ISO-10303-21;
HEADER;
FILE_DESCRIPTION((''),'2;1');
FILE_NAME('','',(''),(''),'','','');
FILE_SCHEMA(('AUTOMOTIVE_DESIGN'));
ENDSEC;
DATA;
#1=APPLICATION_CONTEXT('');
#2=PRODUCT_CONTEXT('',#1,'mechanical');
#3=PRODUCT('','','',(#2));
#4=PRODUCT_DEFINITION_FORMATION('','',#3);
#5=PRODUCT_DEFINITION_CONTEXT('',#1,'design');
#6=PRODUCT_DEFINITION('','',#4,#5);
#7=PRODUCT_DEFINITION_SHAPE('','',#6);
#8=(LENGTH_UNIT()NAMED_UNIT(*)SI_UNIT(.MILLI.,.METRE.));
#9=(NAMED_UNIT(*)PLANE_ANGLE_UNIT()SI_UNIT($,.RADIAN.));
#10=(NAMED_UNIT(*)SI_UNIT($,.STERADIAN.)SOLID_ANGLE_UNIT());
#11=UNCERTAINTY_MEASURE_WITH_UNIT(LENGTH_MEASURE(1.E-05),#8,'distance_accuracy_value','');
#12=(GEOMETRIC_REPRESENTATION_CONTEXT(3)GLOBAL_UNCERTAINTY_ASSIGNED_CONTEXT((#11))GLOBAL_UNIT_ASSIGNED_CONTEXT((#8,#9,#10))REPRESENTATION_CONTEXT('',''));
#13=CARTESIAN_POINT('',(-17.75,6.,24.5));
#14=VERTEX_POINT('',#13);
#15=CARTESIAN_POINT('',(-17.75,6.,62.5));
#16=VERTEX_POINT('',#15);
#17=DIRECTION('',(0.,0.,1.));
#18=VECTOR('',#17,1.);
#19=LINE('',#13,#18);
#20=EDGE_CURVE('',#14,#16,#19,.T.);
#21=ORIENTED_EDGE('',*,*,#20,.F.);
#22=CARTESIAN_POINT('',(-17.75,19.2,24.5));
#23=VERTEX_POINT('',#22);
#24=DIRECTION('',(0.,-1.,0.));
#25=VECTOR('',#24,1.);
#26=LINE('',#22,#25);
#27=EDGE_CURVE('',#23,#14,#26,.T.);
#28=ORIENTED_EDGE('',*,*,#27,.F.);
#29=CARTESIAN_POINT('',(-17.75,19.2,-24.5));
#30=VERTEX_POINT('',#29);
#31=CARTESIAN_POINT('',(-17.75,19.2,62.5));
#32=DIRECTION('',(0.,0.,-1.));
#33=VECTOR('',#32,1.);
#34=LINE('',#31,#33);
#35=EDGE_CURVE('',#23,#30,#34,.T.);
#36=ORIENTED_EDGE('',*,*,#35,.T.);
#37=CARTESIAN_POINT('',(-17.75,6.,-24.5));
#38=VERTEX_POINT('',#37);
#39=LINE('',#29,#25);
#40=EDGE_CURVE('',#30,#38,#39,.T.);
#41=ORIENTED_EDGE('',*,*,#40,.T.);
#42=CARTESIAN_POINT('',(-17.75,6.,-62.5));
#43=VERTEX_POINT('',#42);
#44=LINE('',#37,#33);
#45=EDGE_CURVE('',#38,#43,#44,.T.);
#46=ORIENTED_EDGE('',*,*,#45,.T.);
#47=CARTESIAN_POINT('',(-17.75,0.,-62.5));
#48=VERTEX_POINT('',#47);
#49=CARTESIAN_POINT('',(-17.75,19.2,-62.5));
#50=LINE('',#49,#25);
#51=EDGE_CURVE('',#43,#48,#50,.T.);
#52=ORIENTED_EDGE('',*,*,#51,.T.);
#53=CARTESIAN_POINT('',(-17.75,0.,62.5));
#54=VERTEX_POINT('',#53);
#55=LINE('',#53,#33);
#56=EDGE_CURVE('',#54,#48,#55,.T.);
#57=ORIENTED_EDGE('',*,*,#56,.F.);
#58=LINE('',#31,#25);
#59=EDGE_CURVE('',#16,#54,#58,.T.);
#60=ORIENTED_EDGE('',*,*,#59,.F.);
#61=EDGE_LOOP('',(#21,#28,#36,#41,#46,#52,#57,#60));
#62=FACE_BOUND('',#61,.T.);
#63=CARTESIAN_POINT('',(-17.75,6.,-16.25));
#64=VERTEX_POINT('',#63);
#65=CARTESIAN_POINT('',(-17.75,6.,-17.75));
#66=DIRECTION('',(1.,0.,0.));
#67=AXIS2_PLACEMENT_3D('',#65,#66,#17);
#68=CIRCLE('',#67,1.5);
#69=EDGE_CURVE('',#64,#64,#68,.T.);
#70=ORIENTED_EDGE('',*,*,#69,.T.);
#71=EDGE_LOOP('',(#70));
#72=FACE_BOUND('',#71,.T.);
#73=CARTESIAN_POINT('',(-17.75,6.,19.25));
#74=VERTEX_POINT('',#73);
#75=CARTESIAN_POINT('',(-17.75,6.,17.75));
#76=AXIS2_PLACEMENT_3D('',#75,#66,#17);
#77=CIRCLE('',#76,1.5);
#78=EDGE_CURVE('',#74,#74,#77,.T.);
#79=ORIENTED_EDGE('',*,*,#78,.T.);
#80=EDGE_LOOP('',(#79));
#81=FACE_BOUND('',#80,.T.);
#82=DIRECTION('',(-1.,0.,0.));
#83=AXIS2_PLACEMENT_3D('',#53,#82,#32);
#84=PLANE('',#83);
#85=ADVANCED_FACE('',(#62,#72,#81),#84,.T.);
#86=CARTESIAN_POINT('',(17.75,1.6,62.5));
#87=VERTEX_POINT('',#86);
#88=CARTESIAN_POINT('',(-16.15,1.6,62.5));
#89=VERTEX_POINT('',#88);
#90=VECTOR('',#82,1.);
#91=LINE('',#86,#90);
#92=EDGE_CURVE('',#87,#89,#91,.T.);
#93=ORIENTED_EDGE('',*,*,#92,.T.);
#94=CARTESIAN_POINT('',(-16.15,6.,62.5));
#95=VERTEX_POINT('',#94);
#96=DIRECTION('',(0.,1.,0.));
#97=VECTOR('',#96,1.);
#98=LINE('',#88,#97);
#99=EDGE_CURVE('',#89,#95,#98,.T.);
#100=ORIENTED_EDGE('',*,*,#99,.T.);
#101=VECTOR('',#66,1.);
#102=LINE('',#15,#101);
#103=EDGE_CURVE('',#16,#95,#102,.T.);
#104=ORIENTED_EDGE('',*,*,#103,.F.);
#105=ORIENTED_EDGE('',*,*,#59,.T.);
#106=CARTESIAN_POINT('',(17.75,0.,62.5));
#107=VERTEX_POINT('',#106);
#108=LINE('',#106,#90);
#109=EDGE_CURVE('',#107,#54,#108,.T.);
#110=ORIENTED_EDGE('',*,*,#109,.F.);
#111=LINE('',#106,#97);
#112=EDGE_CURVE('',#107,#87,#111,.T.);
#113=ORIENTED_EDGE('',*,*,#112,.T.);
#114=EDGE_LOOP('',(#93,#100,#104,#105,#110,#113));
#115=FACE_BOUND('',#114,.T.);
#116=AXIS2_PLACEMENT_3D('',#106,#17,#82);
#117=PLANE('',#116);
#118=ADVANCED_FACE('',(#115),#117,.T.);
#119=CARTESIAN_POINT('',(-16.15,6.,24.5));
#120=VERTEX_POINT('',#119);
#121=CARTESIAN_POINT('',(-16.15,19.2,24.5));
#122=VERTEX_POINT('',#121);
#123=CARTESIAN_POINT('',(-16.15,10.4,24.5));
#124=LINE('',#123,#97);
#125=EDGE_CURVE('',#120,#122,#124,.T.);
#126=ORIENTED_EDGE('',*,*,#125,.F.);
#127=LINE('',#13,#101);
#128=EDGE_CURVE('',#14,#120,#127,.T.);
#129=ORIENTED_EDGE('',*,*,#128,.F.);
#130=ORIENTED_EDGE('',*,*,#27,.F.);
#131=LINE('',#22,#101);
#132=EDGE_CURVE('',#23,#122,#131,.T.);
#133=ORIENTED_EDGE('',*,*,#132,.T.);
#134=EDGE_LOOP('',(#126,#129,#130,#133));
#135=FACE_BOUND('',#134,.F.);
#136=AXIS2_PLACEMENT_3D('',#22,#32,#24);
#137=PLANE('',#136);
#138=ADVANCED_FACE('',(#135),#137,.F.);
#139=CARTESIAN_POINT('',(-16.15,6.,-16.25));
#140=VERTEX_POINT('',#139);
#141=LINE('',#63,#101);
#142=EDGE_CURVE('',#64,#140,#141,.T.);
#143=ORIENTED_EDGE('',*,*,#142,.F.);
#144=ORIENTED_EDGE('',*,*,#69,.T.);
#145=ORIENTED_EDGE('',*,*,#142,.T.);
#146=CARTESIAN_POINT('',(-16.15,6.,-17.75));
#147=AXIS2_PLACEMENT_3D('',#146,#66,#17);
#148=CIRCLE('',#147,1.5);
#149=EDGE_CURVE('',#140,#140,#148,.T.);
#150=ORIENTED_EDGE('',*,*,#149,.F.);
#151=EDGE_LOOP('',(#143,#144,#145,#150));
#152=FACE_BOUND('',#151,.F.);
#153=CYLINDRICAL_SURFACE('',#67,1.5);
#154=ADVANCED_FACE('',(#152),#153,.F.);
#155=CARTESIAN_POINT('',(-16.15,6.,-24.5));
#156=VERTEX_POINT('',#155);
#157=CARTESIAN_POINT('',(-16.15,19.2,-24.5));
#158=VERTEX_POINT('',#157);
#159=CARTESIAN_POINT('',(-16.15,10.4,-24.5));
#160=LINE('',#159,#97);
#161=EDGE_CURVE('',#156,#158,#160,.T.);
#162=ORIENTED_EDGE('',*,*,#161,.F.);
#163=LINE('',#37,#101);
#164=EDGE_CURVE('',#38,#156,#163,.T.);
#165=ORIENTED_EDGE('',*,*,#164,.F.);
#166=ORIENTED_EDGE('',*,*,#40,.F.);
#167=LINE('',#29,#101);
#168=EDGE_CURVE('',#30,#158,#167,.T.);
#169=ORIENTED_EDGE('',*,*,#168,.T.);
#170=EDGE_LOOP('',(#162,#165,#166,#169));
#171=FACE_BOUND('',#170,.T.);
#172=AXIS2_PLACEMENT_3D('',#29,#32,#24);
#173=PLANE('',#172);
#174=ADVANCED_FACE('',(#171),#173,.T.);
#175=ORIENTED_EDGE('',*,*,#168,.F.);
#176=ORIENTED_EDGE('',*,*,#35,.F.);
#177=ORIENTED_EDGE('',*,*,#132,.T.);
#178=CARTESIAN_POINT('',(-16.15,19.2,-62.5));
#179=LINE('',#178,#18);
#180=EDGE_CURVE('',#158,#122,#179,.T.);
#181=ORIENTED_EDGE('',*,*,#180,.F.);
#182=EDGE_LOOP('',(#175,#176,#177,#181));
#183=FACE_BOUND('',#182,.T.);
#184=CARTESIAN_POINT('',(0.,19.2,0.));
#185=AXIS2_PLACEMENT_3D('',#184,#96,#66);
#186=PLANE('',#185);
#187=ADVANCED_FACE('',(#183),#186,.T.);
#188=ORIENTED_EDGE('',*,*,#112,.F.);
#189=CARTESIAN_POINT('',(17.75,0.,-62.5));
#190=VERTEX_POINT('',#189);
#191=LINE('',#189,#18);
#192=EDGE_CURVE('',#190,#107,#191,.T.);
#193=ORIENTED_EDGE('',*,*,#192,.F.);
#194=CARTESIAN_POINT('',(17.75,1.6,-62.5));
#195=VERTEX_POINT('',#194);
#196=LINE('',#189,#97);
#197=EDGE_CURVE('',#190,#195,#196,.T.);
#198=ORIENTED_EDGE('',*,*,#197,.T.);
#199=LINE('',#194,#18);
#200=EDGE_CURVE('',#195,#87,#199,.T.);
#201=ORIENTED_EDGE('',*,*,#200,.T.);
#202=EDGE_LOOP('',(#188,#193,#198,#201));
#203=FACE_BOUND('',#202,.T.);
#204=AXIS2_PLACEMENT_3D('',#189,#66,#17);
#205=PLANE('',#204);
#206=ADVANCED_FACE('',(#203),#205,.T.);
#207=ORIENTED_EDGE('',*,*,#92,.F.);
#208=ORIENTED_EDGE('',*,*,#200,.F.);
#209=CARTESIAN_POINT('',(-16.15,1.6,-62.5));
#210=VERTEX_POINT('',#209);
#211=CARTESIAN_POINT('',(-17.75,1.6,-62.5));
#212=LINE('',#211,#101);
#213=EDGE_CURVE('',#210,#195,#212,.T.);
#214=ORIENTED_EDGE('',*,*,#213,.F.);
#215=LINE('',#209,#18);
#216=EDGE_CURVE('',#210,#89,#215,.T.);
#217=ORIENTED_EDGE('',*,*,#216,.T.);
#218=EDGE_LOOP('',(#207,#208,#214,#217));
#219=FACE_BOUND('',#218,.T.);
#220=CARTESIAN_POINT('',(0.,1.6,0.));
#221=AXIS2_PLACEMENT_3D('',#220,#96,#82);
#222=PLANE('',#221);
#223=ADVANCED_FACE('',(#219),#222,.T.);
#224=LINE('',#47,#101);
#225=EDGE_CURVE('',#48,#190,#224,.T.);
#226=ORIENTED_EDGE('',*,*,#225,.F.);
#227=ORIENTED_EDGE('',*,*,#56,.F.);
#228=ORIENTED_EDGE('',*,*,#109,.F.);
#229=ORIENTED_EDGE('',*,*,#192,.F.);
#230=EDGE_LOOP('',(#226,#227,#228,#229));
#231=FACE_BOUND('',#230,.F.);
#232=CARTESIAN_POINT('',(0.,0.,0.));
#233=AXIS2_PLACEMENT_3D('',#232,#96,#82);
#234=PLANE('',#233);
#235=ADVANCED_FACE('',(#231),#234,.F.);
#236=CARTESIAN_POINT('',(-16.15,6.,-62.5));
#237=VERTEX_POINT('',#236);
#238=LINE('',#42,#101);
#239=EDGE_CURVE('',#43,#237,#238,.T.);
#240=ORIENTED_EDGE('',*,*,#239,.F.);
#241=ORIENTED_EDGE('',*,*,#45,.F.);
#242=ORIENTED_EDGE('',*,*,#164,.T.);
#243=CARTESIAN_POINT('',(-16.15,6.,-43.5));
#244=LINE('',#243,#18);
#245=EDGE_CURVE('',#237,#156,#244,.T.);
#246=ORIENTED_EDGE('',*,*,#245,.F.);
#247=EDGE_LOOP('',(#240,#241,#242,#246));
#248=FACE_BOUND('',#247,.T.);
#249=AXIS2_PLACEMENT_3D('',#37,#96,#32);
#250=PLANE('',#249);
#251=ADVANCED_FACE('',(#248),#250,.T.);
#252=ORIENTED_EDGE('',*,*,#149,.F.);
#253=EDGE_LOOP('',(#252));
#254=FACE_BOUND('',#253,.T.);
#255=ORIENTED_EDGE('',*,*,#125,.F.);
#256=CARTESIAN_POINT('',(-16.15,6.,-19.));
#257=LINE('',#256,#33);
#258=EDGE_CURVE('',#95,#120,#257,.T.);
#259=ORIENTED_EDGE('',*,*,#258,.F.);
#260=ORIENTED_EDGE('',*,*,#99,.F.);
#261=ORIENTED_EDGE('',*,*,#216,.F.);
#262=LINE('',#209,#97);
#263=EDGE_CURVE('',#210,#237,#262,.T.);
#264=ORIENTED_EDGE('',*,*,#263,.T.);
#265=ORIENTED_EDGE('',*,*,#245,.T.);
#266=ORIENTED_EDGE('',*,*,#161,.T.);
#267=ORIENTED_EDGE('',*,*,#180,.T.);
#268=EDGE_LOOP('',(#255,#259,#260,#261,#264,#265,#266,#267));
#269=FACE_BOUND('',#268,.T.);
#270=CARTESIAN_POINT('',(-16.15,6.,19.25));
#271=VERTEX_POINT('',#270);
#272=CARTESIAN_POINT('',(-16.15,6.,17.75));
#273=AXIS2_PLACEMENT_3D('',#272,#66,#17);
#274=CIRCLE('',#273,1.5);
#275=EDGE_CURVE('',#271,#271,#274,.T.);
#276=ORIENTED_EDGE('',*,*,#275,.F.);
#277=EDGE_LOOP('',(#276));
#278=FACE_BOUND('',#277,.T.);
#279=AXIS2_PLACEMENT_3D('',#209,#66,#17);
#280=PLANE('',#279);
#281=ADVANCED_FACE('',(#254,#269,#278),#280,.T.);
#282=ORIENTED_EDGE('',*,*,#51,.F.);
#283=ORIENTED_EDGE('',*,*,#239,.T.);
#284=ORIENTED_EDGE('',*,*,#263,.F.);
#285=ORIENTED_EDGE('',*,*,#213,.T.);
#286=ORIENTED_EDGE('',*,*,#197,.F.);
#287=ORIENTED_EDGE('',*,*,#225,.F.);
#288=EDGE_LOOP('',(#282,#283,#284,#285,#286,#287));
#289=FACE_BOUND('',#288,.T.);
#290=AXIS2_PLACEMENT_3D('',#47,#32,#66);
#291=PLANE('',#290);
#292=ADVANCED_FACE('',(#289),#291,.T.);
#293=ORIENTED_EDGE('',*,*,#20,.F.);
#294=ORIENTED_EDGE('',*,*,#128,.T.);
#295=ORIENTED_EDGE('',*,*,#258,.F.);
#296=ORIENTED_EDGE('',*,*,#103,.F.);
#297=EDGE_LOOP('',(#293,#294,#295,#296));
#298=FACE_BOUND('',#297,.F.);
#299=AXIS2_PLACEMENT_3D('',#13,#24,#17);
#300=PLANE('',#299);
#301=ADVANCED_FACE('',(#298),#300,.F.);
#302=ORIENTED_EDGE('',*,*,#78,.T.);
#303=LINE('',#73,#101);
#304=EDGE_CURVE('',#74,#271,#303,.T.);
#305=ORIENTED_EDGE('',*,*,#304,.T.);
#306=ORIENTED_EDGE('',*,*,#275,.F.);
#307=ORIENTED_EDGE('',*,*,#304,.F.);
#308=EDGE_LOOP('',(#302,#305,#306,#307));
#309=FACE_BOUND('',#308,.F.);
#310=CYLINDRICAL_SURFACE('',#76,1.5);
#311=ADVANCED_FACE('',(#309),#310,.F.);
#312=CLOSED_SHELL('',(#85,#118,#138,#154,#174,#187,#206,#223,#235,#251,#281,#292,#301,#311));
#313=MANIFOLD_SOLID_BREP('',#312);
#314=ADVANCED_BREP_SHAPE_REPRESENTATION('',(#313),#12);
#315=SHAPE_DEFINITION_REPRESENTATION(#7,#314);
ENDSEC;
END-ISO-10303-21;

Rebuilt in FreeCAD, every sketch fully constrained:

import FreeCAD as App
import Part
import Sketcher
Q = App.Units.Quantity

doc = App.newDocument("Part")
body = doc.addObject("PartDesign::Body", "Body")

# Sketch on XZ plane
sketch1 = body.newObject("Sketcher::SketchObject", "Sketch")
sketch1.AttachmentSupport = (doc.getObject("XZ_Plane"), [""])
sketch1.MapMode = "FlatFace"
sketch1.addGeometry(Part.LineSegment(App.Vector(-18, 62, 0), App.Vector(18, 62, 0)), False)
sketch1.addGeometry(Part.LineSegment(App.Vector(18, 62, 0), App.Vector(18, -62, 0)), False)
sketch1.addGeometry(Part.LineSegment(App.Vector(18, -62, 0), App.Vector(-18, -62, 0)), False)
sketch1.addGeometry(Part.LineSegment(App.Vector(-18, -62, 0), App.Vector(-18, 62, 0)), False)
sketch1.addConstraint(Sketcher.Constraint("Coincident", 0, 2, 1, 1))
sketch1.addConstraint(Sketcher.Constraint("Coincident", 1, 2, 2, 1))
sketch1.addConstraint(Sketcher.Constraint("Coincident", 2, 2, 3, 1))
sketch1.addConstraint(Sketcher.Constraint("Coincident", 3, 2, 0, 1))
sketch1.addConstraint(Sketcher.Constraint("Horizontal", 0))
sketch1.addConstraint(Sketcher.Constraint("Vertical", 1))
sketch1.addConstraint(Sketcher.Constraint("Horizontal", 2))
sketch1.addConstraint(Sketcher.Constraint("Vertical", 3))
sketch1.addConstraint(Sketcher.Constraint("Symmetric", 0, 2, 2, 2, -1, 1))
sketch1.addConstraint(Sketcher.Constraint("DistanceY", 1, 2, 1, 1, Q("125 mm")))
sketch1.addConstraint(Sketcher.Constraint("DistanceX", 0, 1, 0, 2, Q("35.5 mm")))
pad1 = body.newObject("PartDesign::Pad", "Pad")
pad1.Profile = sketch1
pad1.Length = 1.6
pad1.Reversed = True

# Sketch on XZ plane
sketch2 = body.newObject("Sketcher::SketchObject", "Sketch001")
sketch2.AttachmentSupport = (doc.getObject("XZ_Plane"), [""])
sketch2.MapMode = "FlatFace"
sketch2.AttachmentOffset = App.Placement(App.Vector(0, 0, -1.6), App.Rotation())
sketch2.addGeometry(Part.LineSegment(App.Vector(-16.1, 62.5, 0), App.Vector(-16.1, -62.5, 0)), False)
sketch2.addGeometry(Part.LineSegment(App.Vector(-16.1, -62.5, 0), App.Vector(-17.8, -62.5, 0)), False)
sketch2.addGeometry(Part.LineSegment(App.Vector(-17.8, -62.5, 0), App.Vector(-17.8, 62.5, 0)), False)
sketch2.addGeometry(Part.LineSegment(App.Vector(-17.8, 62.5, 0), App.Vector(-16.1, 62.5, 0)), False)
sketch2.addConstraint(Sketcher.Constraint("Coincident", 0, 2, 1, 1))
sketch2.addConstraint(Sketcher.Constraint("Coincident", 1, 2, 2, 1))
sketch2.addConstraint(Sketcher.Constraint("Coincident", 2, 2, 3, 1))
sketch2.addConstraint(Sketcher.Constraint("Coincident", 3, 2, 0, 1))
sketch2.addConstraint(Sketcher.Constraint("Vertical", 0))
sketch2.addConstraint(Sketcher.Constraint("Horizontal", 1))
sketch2.addConstraint(Sketcher.Constraint("Vertical", 2))
sketch2.addConstraint(Sketcher.Constraint("Horizontal", 3))
sketch2.addConstraint(Sketcher.Constraint("DistanceX", 1, 2, 1, 1, Q("1.6 mm")))
sketch2.addConstraint(Sketcher.Constraint("DistanceY", 0, 2, 0, 1, Q("125 mm")))
sketch2.addConstraint(Sketcher.Constraint("DistanceY", 0, 2, -1, 1, Q("62.5 mm")))
sketch2.addConstraint(Sketcher.Constraint("DistanceX", 0, 2, -1, 1, Q("16.15 mm")))
pad2 = body.newObject("PartDesign::Pad", "Pad001")
pad2.Profile = sketch2
pad2.Length = 17.6
pad2.Reversed = True

# Sketch on YZ plane
sketch3 = body.newObject("Sketcher::SketchObject", "Sketch002")
sketch3.AttachmentSupport = (doc.getObject("YZ_Plane"), [""])
sketch3.MapMode = "FlatFace"
sketch3.AttachmentOffset = App.Placement(App.Vector(0, 0, -17.75), App.Rotation())
sketch3.addGeometry(Part.LineSegment(App.Vector(6, 62, 0), App.Vector(19, 62, 0)), False)
sketch3.addGeometry(Part.LineSegment(App.Vector(19, 62, 0), App.Vector(19, 24, 0)), False)
sketch3.addGeometry(Part.LineSegment(App.Vector(19, 24, 0), App.Vector(6, 24, 0)), False)
sketch3.addGeometry(Part.LineSegment(App.Vector(6, 24, 0), App.Vector(6, 62, 0)), False)
sketch3.addGeometry(Part.LineSegment(App.Vector(19, -24, 0), App.Vector(19, -62, 0)), False)
sketch3.addGeometry(Part.LineSegment(App.Vector(19, -62, 0), App.Vector(6, -62, 0)), False)
sketch3.addGeometry(Part.LineSegment(App.Vector(6, -62, 0), App.Vector(6, -24, 0)), False)
sketch3.addGeometry(Part.LineSegment(App.Vector(6, -24, 0), App.Vector(19, -24, 0)), False)
sketch3.addConstraint(Sketcher.Constraint("Coincident", 0, 2, 1, 1))
sketch3.addConstraint(Sketcher.Constraint("Coincident", 1, 2, 2, 1))
sketch3.addConstraint(Sketcher.Constraint("Coincident", 2, 2, 3, 1))
sketch3.addConstraint(Sketcher.Constraint("Coincident", 3, 2, 0, 1))
sketch3.addConstraint(Sketcher.Constraint("Coincident", 4, 2, 5, 1))
sketch3.addConstraint(Sketcher.Constraint("Coincident", 5, 2, 6, 1))
sketch3.addConstraint(Sketcher.Constraint("Coincident", 6, 2, 7, 1))
sketch3.addConstraint(Sketcher.Constraint("Coincident", 7, 2, 4, 1))
sketch3.addConstraint(Sketcher.Constraint("Horizontal", 0))
sketch3.addConstraint(Sketcher.Constraint("Vertical", 1))
sketch3.addConstraint(Sketcher.Constraint("Horizontal", 2))
sketch3.addConstraint(Sketcher.Constraint("Vertical", 3))
sketch3.addConstraint(Sketcher.Constraint("Vertical", 4))
sketch3.addConstraint(Sketcher.Constraint("Horizontal", 5))
sketch3.addConstraint(Sketcher.Constraint("Vertical", 6))
sketch3.addConstraint(Sketcher.Constraint("Horizontal", 7))
sketch3.addConstraint(Sketcher.Constraint("Symmetric", 0, 2, 4, 2, -1))
sketch3.addConstraint(Sketcher.Constraint("Symmetric", 2, 2, 6, 2, -1))
sketch3.addConstraint(Sketcher.Constraint("DistanceY", 1, 2, 1, 1, Q("38 mm")))
sketch3.addConstraint(Sketcher.Constraint("DistanceX", -1, 1, 2, 2, Q("6 mm")))
sketch3.addConstraint(Sketcher.Constraint("DistanceX", 0, 1, 0, 2, Q("13.2 mm")))
sketch3.addConstraint(Sketcher.Constraint("DistanceY", 4, 2, 1, 2, Q("87 mm")))
pocket1 = body.newObject("PartDesign::Pocket", "Pocket")
pocket1.Profile = sketch3
pocket1.Type = "ThroughAll"
pocket1.Reversed = True

# Sketch on YZ plane
sketch4 = body.newObject("Sketcher::SketchObject", "Sketch003")
sketch4.AttachmentSupport = (doc.getObject("YZ_Plane"), [""])
sketch4.MapMode = "FlatFace"
sketch4.AttachmentOffset = App.Placement(App.Vector(0, 0, -17.75), App.Rotation())
sketch4.addGeometry(Part.Circle(App.Vector(6, 17.8, 0), App.Vector(0, 0, 1), 1.5), False)
sketch4.addGeometry(Part.Circle(App.Vector(6, -17.8, 0), App.Vector(0, 0, 1), 1.5), False)
sketch4.addConstraint(Sketcher.Constraint("Equal", 0, 1))
sketch4.addConstraint(Sketcher.Constraint("Symmetric", 0, 3, 1, 3, -1))
sketch4.addConstraint(Sketcher.Constraint("Diameter", 0, Q("3 mm")))
sketch4.addConstraint(Sketcher.Constraint("DistanceX", -1, 1, 0, 3, Q("6 mm")))
sketch4.addConstraint(Sketcher.Constraint("DistanceY", 1, 3, 0, 3, Q("35.5 mm")))
doc.recompute()
hole = body.newObject("PartDesign::Hole", "Hole")
hole.Profile = sketch4
hole.ThreadType = "None"
hole.Diameter = 3
hole.DepthType = "ThroughAll"
hole.Reversed = True

doc.recompute()
